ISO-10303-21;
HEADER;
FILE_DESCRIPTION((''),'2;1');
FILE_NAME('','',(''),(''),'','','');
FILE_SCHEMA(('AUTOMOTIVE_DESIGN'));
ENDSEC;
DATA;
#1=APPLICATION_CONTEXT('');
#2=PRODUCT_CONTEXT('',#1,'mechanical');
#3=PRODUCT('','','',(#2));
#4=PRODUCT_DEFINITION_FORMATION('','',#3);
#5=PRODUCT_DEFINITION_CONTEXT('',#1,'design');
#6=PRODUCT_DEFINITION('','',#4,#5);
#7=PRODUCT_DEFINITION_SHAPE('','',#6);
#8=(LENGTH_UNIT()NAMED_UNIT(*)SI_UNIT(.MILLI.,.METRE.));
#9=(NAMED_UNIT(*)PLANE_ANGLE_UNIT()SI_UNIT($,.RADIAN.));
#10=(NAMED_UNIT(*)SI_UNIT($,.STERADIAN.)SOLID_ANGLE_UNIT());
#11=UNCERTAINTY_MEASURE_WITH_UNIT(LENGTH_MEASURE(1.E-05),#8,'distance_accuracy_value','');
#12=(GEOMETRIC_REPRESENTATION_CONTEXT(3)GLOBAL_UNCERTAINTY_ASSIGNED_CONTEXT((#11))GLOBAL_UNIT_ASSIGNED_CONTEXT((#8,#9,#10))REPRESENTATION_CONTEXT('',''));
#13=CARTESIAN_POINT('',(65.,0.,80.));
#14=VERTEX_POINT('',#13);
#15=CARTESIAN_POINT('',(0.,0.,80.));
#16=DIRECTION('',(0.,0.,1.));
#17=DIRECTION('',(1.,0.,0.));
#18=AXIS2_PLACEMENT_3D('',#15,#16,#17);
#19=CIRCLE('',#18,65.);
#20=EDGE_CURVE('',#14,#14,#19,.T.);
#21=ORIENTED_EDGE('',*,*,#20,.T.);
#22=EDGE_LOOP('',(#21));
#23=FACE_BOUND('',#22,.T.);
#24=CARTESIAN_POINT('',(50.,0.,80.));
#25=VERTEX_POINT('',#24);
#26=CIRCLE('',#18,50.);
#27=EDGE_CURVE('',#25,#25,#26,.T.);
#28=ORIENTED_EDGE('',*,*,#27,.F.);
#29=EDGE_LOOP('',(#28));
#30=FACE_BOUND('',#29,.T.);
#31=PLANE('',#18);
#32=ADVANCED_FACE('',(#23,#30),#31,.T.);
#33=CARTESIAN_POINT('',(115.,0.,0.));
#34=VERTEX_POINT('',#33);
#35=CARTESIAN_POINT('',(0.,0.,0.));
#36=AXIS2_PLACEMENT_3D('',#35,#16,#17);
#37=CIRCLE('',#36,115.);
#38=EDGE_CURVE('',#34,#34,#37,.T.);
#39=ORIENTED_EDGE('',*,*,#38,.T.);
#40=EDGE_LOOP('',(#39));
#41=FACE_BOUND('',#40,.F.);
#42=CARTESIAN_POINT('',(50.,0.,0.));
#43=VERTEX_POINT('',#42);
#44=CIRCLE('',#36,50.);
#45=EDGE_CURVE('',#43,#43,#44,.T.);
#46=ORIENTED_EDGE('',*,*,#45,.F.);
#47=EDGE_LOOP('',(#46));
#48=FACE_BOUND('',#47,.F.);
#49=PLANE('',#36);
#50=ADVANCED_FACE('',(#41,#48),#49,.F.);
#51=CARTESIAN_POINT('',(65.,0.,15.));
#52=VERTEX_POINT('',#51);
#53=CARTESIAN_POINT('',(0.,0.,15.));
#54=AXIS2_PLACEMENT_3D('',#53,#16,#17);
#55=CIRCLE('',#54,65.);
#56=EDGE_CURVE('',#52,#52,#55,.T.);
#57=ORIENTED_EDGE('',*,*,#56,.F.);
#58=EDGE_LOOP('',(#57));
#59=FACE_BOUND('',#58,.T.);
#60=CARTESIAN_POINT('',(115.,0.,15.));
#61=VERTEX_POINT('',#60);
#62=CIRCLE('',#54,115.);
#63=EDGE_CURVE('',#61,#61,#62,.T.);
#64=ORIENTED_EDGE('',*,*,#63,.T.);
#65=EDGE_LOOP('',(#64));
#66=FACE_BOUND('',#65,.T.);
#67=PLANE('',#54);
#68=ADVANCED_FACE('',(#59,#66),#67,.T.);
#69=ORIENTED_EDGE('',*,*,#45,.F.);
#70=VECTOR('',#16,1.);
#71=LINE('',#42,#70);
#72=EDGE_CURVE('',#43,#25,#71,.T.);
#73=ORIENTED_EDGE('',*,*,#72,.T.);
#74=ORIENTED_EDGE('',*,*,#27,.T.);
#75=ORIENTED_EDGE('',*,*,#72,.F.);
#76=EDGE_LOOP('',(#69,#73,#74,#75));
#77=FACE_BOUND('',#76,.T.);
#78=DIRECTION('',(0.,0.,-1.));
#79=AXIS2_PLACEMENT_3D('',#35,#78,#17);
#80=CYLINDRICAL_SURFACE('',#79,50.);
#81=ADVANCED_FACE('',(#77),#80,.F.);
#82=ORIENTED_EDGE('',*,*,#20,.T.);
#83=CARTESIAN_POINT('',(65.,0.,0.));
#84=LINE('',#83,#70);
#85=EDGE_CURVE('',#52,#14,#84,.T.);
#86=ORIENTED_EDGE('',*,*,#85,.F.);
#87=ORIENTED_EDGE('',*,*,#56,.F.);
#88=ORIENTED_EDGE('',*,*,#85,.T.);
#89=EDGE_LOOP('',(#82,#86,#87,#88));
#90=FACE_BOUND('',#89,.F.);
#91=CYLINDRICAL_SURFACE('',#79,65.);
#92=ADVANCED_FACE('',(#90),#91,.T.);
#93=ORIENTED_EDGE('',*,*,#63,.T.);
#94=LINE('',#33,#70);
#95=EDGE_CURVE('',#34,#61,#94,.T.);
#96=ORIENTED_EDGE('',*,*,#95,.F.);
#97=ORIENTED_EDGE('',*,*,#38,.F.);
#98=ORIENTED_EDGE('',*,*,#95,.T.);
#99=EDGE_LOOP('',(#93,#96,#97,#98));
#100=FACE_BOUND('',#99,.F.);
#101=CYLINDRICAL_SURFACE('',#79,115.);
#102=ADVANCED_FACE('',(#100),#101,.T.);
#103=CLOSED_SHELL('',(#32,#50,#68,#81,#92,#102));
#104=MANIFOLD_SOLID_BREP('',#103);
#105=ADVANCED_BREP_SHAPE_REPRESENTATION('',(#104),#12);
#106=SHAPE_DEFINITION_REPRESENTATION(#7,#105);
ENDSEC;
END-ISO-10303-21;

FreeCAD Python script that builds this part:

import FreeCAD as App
import Part
import Sketcher

doc = App.newDocument("Part")
params = doc.addObject("Spreadsheet::Sheet", "Params")
for row, (alias, value) in enumerate([
    ("sketch1_diameter", "230 mm"),
    ("sketch1_diameter2", "130 mm"),
    ("pad1_length", "15 mm"),
    ("sketch2_diameter", "130 mm"),
    ("sketch2_diameter2", "100 mm"),
    ("pad2_length", "80 mm"),
    ("sketch3_diameter", "15 mm"),
], start=1):
    params.set(f"A{row}", alias)
    params.set(f"B{row}", "=" + value)
    params.setAlias(f"B{row}", alias)

body = doc.addObject("PartDesign::Body", "Body")

sketch1 = body.newObject("Sketcher::SketchObject", "Sketch")
sketch1.AttachmentSupport = (doc.getObject("XY_Plane"), [""])
sketch1.MapMode = "FlatFace"
sketch1.addGeometry([
    Part.Circle(App.Vector(0, 0, 0), App.Vector(0, 0, 1), 115),
    Part.Circle(App.Vector(0, 0, 0), App.Vector(0, 0, 1), 65),
], False)
sketch1.addConstraint([
    Sketcher.Constraint("Coincident", 0, 3, -1, 1),
    Sketcher.Constraint("Coincident", 1, 3, -1, 1),
    Sketcher.Constraint("Diameter", 0, 230.0),
    Sketcher.Constraint("Diameter", 1, 130.0),
])
sketch1.setExpression("Constraints[2]", "Params.sketch1_diameter")
sketch1.setExpression("Constraints[3]", "Params.sketch1_diameter2")
pad1 = body.newObject("PartDesign::Pad", "Pad")
pad1.Profile = sketch1
pad1.setExpression("Length", "Params.pad1_length")

sketch2 = body.newObject("Sketcher::SketchObject", "Sketch001")
sketch2.AttachmentSupport = (doc.getObject("XY_Plane"), [""])
sketch2.MapMode = "FlatFace"
sketch2.addGeometry([
    Part.Circle(App.Vector(0, 0, 0), App.Vector(0, 0, 1), 65),
    Part.Circle(App.Vector(0, 0, 0), App.Vector(0, 0, 1), 50),
], False)
sketch2.addConstraint([
    Sketcher.Constraint("Coincident", 0, 3, -1, 1),
    Sketcher.Constraint("Coincident", 1, 3, -1, 1),
    Sketcher.Constraint("Diameter", 0, 130.0),
    Sketcher.Constraint("Diameter", 1, 100.0),
])
sketch2.setExpression("Constraints[2]", "Params.sketch2_diameter")
sketch2.setExpression("Constraints[3]", "Params.sketch2_diameter2")
pad2 = body.newObject("PartDesign::Pad", "Pad001")
pad2.Profile = sketch2
pad2.setExpression("Length", "Params.pad2_length")

sketch3 = body.newObject("Sketcher::SketchObject", "Sketch002")
sketch3.AttachmentSupport = (doc.getObject("XY_Plane"), [""])
sketch3.MapMode = "FlatFace"
sketch3.AttachmentOffset = App.Placement(App.Vector(0, 0, 15), App.Rotation())
sketch3.addGeometry(Part.Circle(App.Vector(-33, 81, 0), App.Vector(0, 0, 1), 8), False)
sketch3.addConstraint([
    Sketcher.Constraint("Diameter", 0, 15.0),
    Sketcher.Constraint("DistanceX", 0, 3, -1, 1, 33.4848),
    Sketcher.Constraint("DistanceY", -1, 1, 0, 3, 80.8395),
])
sketch3.setExpression("Constraints[0]", "Params.sketch3_diameter")
pocket1 = body.newObject("PartDesign::Pocket", "Pocket")
pocket1.Profile = sketch3
pocket1.Type = "ThroughAll"
pocket1.Reversed = True
doc.recompute()

polarpattern = body.newObject("PartDesign::PolarPattern", "PolarPattern")
polarpattern.Originals = [pocket1]
polarpattern.Axis = (doc.getObject("Z_Axis"), [""])
polarpattern.Angle = 360
polarpattern.Occurrences = 8
body.Tip = polarpattern

doc.recompute()
